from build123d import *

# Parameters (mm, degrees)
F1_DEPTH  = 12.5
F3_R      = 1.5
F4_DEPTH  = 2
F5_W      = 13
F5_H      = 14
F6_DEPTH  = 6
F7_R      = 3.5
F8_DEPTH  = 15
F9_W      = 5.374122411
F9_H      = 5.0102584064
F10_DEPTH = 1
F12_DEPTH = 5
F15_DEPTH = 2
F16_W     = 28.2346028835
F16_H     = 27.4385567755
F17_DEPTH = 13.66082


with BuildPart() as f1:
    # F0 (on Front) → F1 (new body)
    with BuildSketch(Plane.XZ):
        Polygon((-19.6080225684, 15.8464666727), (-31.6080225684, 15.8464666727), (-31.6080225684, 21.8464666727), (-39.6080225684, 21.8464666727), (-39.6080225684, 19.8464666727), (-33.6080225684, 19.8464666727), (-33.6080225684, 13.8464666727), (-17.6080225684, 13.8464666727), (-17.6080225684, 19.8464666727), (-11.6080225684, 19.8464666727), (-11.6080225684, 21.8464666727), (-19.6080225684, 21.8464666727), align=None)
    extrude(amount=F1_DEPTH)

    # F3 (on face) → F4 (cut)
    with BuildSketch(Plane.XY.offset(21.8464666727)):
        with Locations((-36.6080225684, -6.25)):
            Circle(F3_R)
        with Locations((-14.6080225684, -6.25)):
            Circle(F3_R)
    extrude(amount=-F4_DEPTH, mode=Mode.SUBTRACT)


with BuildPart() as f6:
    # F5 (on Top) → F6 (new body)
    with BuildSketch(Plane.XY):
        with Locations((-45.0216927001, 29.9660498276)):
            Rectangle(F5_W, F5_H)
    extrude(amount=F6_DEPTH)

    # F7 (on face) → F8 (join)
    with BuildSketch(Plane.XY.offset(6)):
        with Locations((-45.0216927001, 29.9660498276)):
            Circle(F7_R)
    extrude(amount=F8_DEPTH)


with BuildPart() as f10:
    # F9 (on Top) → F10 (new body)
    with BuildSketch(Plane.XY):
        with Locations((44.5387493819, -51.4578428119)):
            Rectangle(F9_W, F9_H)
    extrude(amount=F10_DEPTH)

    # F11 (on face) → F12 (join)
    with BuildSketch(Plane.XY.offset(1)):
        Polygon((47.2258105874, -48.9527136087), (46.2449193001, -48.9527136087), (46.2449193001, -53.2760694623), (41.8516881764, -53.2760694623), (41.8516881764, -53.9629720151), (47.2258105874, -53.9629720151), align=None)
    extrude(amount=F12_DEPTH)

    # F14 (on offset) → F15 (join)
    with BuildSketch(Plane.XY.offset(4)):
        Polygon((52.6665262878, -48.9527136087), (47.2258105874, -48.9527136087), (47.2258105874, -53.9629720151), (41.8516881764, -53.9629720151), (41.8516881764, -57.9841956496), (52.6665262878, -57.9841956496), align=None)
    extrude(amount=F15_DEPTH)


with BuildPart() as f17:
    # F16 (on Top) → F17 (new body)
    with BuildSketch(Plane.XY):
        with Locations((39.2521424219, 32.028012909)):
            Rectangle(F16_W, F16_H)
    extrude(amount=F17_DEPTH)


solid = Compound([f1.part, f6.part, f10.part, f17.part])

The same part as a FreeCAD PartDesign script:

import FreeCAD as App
import Part
import Sketcher


def add_polygon(sketch, points):
    """Adds a closed chain of lines whose ends are joined by coincident constraints."""
    first, n = sketch.GeometryCount, len(points)
    for a, b in zip(points, points[1:] + points[:1]):
        sketch.addGeometry(Part.LineSegment(App.Vector(*a, 0), App.Vector(*b, 0)), False)
    for i in range(n):
        sketch.addConstraint(Sketcher.Constraint("Coincident", first + i, 2, first + (i + 1) % n, 1))

doc = App.newDocument("Part")
body = doc.addObject("PartDesign::Body", "Body")

# Sketch on XZ plane
sketch1 = body.newObject("Sketcher::SketchObject", "Sketch")
sketch1.AttachmentSupport = (doc.getObject("XZ_Plane"), [""])
sketch1.MapMode = "FlatFace"
add_polygon(sketch1, [(-19.608023, 15.846467), (-31.608023, 15.846467), (-31.608023, 21.846467), (-39.608023, 21.846467), (-39.608023, 19.846467), (-33.608023, 19.846467), (-33.608023, 13.846467), (-17.608023, 13.846467), (-17.608023, 19.846467), (-11.608023, 19.846467), (-11.608023, 21.846467), (-19.608023, 21.846467)])  # lines 0-11
sketch1.addConstraint([
    Sketcher.Constraint("Horizontal", 0),
    Sketcher.Constraint("Vertical", 1),
    Sketcher.Constraint("Horizontal", 2),
    Sketcher.Constraint("Vertical", 3),
    Sketcher.Constraint("Horizontal", 4),
    Sketcher.Constraint("Vertical", 5),
    Sketcher.Constraint("Horizontal", 6),
    Sketcher.Constraint("Vertical", 7),
    Sketcher.Constraint("Horizontal", 8),
    Sketcher.Constraint("Vertical", 9),
    Sketcher.Constraint("Horizontal", 10),
    Sketcher.Constraint("Vertical", 11),
    Sketcher.Constraint("Horizontal", 4, 2, 7, 2),
    Sketcher.Constraint("Horizontal", 2, 2, 9, 2),
    Sketcher.Constraint("Equal", 4, 8),
    Sketcher.Constraint("Equal", 2, 10),
    Sketcher.Constraint("Equal", 8, 1),
    Sketcher.Constraint("Equal", 1, 5),
    Sketcher.Constraint("DistanceX", 0, 2, 0, 1, 12.0),
    Sketcher.Constraint("DistanceX", 2, 2, 2, 1, 8.0),
    Sketcher.Constraint("DistanceX", 4, 1, 4, 2, 6.0),
    Sketcher.Constraint("DistanceY", 3, 2, 3, 1, 2.0),
    Sketcher.Constraint("DistanceX", 0, 2, -1, 1, 31.608023),
    Sketcher.Constraint("DistanceY", -1, 1, 0, 2, 15.846467),
])
pad1 = body.newObject("PartDesign::Pad", "Pad")
pad1.Profile = sketch1
pad1.Length = 12.5

# Sketch on XY plane
sketch2 = body.newObject("Sketcher::SketchObject", "Sketch001")
sketch2.AttachmentSupport = (doc.getObject("XY_Plane"), [""])
sketch2.MapMode = "FlatFace"
sketch2.AttachmentOffset = App.Placement(App.Vector(0, 0, 21.846467), App.Rotation())
sketch2.addGeometry([
    Part.Circle(App.Vector(-36.608023, -6.25, 0), App.Vector(0, 0, 1), 1.5),
    Part.Circle(App.Vector(-14.608023, -6.25, 0), App.Vector(0, 0, 1), 1.5),
], False)
sketch2.addConstraint([
    Sketcher.Constraint("Equal", 0, 1),
    Sketcher.Constraint("Horizontal", 0, 3, 1, 3),
    Sketcher.Constraint("Diameter", 0, 3.0),
    Sketcher.Constraint("DistanceX", 0, 3, 1, 3, 22.0),
    Sketcher.Constraint("DistanceY", 0, 3, -1, 1, 6.25),
    Sketcher.Constraint("DistanceX", 0, 3, -1, 1, 36.608023),
])
pocket1 = body.newObject("PartDesign::Pocket", "Pocket")
pocket1.Profile = sketch2
pocket1.Length = 2
body2 = doc.addObject("PartDesign::Body", "Body001")

# Sketch on XY plane
sketch3 = body2.newObject("Sketcher::SketchObject", "Sketch002")
sketch3.AttachmentSupport = (doc.getObject("XY_Plane001"), [""])
sketch3.MapMode = "FlatFace"
add_polygon(sketch3, [(-51.521693, 36.96605), (-51.521693, 22.96605), (-38.521693, 22.96605), (-38.521693, 36.96605)])  # lines 0-3
sketch3.addConstraint([
    Sketcher.Constraint("Vertical", 0),
    Sketcher.Constraint("Horizontal", 1),
    Sketcher.Constraint("Vertical", 2),
    Sketcher.Constraint("Horizontal", 3),
    Sketcher.Constraint("DistanceX", 1, 1, 1, 2, 13.0),
    Sketcher.Constraint("DistanceY", 0, 2, 0, 1, 14.0),
    Sketcher.Constraint("DistanceY", -1, 1, 0, 2, 22.96605),
    Sketcher.Constraint("DistanceX", 0, 2, -1, 1, 51.521693),
])
pad2 = body2.newObject("PartDesign::Pad", "Pad001")
pad2.Profile = sketch3
pad2.Length = 6

# Sketch on XY plane
sketch4 = body2.newObject("Sketcher::SketchObject", "Sketch003")
sketch4.AttachmentSupport = (doc.getObject("XY_Plane001"), [""])
sketch4.MapMode = "FlatFace"
sketch4.AttachmentOffset = App.Placement(App.Vector(0, 0, 6), App.Rotation())
sketch4.addGeometry(Part.Circle(App.Vector(-45.021693, 29.96605, 0), App.Vector(0, 0, 1), 3.5), False)
sketch4.addConstraint([
    Sketcher.Constraint("Diameter", 0, 7.0),
    Sketcher.Constraint("DistanceY", -1, 1, 0, 3, 29.96605),
    Sketcher.Constraint("DistanceX", 0, 3, -1, 1, 45.021693),
])
pad3 = body2.newObject("PartDesign::Pad", "Pad002")
pad3.Profile = sketch4
pad3.Length = 15
body3 = doc.addObject("PartDesign::Body", "Body002")

# Sketch on XY plane
sketch5 = body3.newObject("Sketcher::SketchObject", "Sketch004")
sketch5.AttachmentSupport = (doc.getObject("XY_Plane002"), [""])
sketch5.MapMode = "FlatFace"
add_polygon(sketch5, [(41.851688, -48.952714), (41.851688, -53.962972), (47.225811, -53.962972), (47.225811, -48.952714)])  # lines 0-3
sketch5.addConstraint([
    Sketcher.Constraint("Vertical", 0),
    Sketcher.Constraint("Horizontal", 1),
    Sketcher.Constraint("Vertical", 2),
    Sketcher.Constraint("Horizontal", 3),
    Sketcher.Constraint("DistanceY", 0, 2, 0, 1, 5.010258),
    Sketcher.Constraint("DistanceX", 1, 1, 1, 2, 5.374122),
    Sketcher.Constraint("DistanceX", -1, 1, 0, 2, 41.851688),
    Sketcher.Constraint("DistanceY", 0, 2, -1, 1, 53.962972),
])
pad4 = body3.newObject("PartDesign::Pad", "Pad003")
pad4.Profile = sketch5
pad4.Length = 1

# Sketch on XY plane
sketch6 = body3.newObject("Sketcher::SketchObject", "Sketch005")
sketch6.AttachmentSupport = (doc.getObject("XY_Plane002"), [""])
sketch6.MapMode = "FlatFace"
sketch6.AttachmentOffset = App.Placement(App.Vector(0, 0, 1), App.Rotation())
add_polygon(sketch6, [(47.225811, -48.952714), (46.244919, -48.952714), (46.244919, -53.276069), (41.851688, -53.276069), (41.851688, -53.962972), (47.225811, -53.962972)])  # lines 0-5
sketch6.addConstraint([
    Sketcher.Constraint("Horizontal", 0),
    Sketcher.Constraint("Vertical", 1),
    Sketcher.Constraint("Horizontal", 2),
    Sketcher.Constraint("Vertical", 3),
    Sketcher.Constraint("Horizontal", 4),
    Sketcher.Constraint("Vertical", 5),
    Sketcher.Constraint("DistanceX", 0, 2, 0, 1, 0.980891),
    Sketcher.Constraint("DistanceX", 2, 2, 2, 1, 4.393231),
    Sketcher.Constraint("DistanceY", 5, 1, 5, 2, 5.010258),
    Sketcher.Constraint("DistanceY", 1, 2, 1, 1, 4.323356),
    Sketcher.Constraint("DistanceX", -1, 1, 0, 2, 46.244919),
    Sketcher.Constraint("DistanceY", 1, 2, -1, 1, 53.276069),
])
pad5 = body3.newObject("PartDesign::Pad", "Pad004")
pad5.Profile = sketch6
pad5.Length = 5

# Sketch on XY plane
sketch7 = body3.newObject("Sketcher::SketchObject", "Sketch006")
sketch7.AttachmentSupport = (doc.getObject("XY_Plane002"), [""])
sketch7.MapMode = "FlatFace"
sketch7.AttachmentOffset = App.Placement(App.Vector(0, 0, 4), App.Rotation())
add_polygon(sketch7, [(52.666526, -48.952714), (47.225811, -48.952714), (47.225811, -53.962972), (41.851688, -53.962972), (41.851688, -57.984196), (52.666526, -57.984196)])  # lines 0-5
sketch7.addConstraint([
    Sketcher.Constraint("Horizontal", 0),
    Sketcher.Constraint("Vertical", 1),
    Sketcher.Constraint("Horizontal", 2),
    Sketcher.Constraint("Vertical", 3),
    Sketcher.Constraint("Horizontal", 4),
    Sketcher.Constraint("Vertical", 5),
    Sketcher.Constraint("DistanceX", 4, 1, 4, 2, 10.814838),
    Sketcher.Constraint("DistanceY", 1, 2, 1, 1, 5.010258),
    Sketcher.Constraint("DistanceX", 0, 2, 0, 1, 5.440716),
    Sketcher.Constraint("DistanceY", 3, 2, 3, 1, 4.021224),
    Sketcher.Constraint("DistanceX", -1, 1, 0, 2, 47.225811),
    Sketcher.Constraint("DistanceY", 0, 2, -1, 1, 48.952714),
])
pad6 = body3.newObject("PartDesign::Pad", "Pad005")
pad6.Profile = sketch7
pad6.Length = 2
body4 = doc.addObject("PartDesign::Body", "Body003")

# Sketch on XY plane
sketch8 = body4.newObject("Sketcher::SketchObject", "Sketch007")
sketch8.AttachmentSupport = (doc.getObject("XY_Plane003"), [""])
sketch8.MapMode = "FlatFace"
add_polygon(sketch8, [(25.134841, 45.747291), (25.134841, 18.308735), (53.369444, 18.308735), (53.369444, 45.747291)])  # lines 0-3
sketch8.addConstraint([
    Sketcher.Constraint("Vertical", 0),
    Sketcher.Constraint("Horizontal", 1),
    Sketcher.Constraint("Vertical", 2),
    Sketcher.Constraint("Horizontal", 3),
    Sketcher.Constraint("DistanceX", 1, 1, 1, 2, 28.234603),
    Sketcher.Constraint("DistanceY", 0, 2, 0, 1, 27.438557),
    Sketcher.Constraint("DistanceX", -1, 1, 0, 2, 25.134841),
    Sketcher.Constraint("DistanceY", -1, 1, 2, 2, 45.747291),
])
pad7 = body4.newObject("PartDesign::Pad", "Pad006")
pad7.Profile = sketch8
pad7.Length = 13.66082

doc.recompute()
